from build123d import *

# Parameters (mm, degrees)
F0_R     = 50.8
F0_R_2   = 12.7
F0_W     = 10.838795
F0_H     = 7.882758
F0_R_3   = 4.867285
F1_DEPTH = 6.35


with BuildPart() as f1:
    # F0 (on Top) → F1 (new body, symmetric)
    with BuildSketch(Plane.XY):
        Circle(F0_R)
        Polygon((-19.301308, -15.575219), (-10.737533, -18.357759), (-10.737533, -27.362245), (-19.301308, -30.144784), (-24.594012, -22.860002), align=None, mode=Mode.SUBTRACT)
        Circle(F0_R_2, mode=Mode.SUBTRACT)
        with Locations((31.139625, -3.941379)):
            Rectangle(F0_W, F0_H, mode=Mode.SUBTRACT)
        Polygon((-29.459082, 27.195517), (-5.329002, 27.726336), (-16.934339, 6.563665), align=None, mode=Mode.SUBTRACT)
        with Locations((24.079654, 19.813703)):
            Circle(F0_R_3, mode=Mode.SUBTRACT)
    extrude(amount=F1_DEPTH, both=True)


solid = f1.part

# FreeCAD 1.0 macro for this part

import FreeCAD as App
import Part
import Sketcher
Q = App.Units.Quantity

doc = App.newDocument("Part")
params = doc.addObject("Spreadsheet::Sheet", "Params")
for row, (alias, value) in enumerate([
    ("sketch1_diameter", "4 in"),
    ("sketch1_diameter2", "1 in"),
    ("pad1_length", "0.5 in"),
], start=1):
    params.set(f"A{row}", alias)
    params.set(f"B{row}", "=" + value)
    params.setAlias(f"B{row}", alias)

body = doc.addObject("PartDesign::Body", "Body")

sketch1 = doc.addObject("Sketcher::SketchObject", "Sketch")
body.addObject(sketch1)
sketch1.AttachmentSupport = (doc.XY_Plane, [""])
sketch1.MapMode = "FlatFace"
sketch1.addGeometry([
    Part.Circle(App.Vector(0, 0, 0), App.Vector(0, 0, 1), 50.8),
    Part.LineSegment(App.Vector(-24.6, -22.9, 0), App.Vector(-19.3, -15.6, 0)),
    Part.LineSegment(App.Vector(-19.3, -15.6, 0), App.Vector(-10.7, -18.4, 0)),
    Part.LineSegment(App.Vector(-10.7, -18.4, 0), App.Vector(-10.7, -27.4, 0)),
    Part.LineSegment(App.Vector(-10.7, -27.4, 0), App.Vector(-19.3, -30.1, 0)),
    Part.LineSegment(App.Vector(-19.3, -30.1, 0), App.Vector(-24.6, -22.9, 0)),
    Part.LineSegment(App.Vector(36.6, -7.9, 0), App.Vector(25.7, -7.9, 0)),
    Part.LineSegment(App.Vector(25.7, -7.9, 0), App.Vector(25.7, 0, 0)),
    Part.LineSegment(App.Vector(25.7, 0, 0), App.Vector(36.6, 0, 0)),
    Part.LineSegment(App.Vector(36.6, 0, 0), App.Vector(36.6, -7.9, 0)),
    Part.Circle(App.Vector(0, 0, 0), App.Vector(0, 0, 1), 12.7),
    Part.LineSegment(App.Vector(-16.9, 6.6, 0), App.Vector(-29.5, 27.2, 0)),
    Part.LineSegment(App.Vector(-29.5, 27.2, 0), App.Vector(-5.3, 27.7, 0)),
    Part.LineSegment(App.Vector(-5.3, 27.7, 0), App.Vector(-16.9, 6.6, 0)),
    Part.Circle(App.Vector(24.1, 19.8, 0), App.Vector(0, 0, 1), 4.9),
], False)
sketch1.addConstraint([
    Sketcher.Constraint("Coincident", 1, 2, 2, 1),
    Sketcher.Constraint("Coincident", 2, 2, 3, 1),
    Sketcher.Constraint("Coincident", 3, 2, 4, 1),
    Sketcher.Constraint("Coincident", 4, 2, 5, 1),
    Sketcher.Constraint("Coincident", 5, 2, 1, 1),
    Sketcher.Constraint("Coincident", 6, 2, 7, 1),
    Sketcher.Constraint("Coincident", 7, 2, 8, 1),
    Sketcher.Constraint("Coincident", 8, 2, 9, 1),
    Sketcher.Constraint("Coincident", 9, 2, 6, 1),
    Sketcher.Constraint("Coincident", 11, 2, 12, 1),
    Sketcher.Constraint("Coincident", 12, 2, 13, 1),
    Sketcher.Constraint("Coincident", 13, 2, 11, 1),
    Sketcher.Constraint("Vertical", 3),
    Sketcher.Constraint("Horizontal", 6),
    Sketcher.Constraint("Vertical", 7),
    Sketcher.Constraint("Horizontal", 8),
    Sketcher.Constraint("Vertical", 9),
    Sketcher.Constraint("Coincident", 0, 3, -1, 1),
    Sketcher.Constraint("Coincident", 10, 3, -1, 1),
    Sketcher.Constraint("PointOnObject", 7, 2, -1),
    Sketcher.Constraint("Vertical", 1, 2, 4, 2),
    Sketcher.Constraint("Equal", 1, 2),
    Sketcher.Constraint("Equal", 2, 4),
    Sketcher.Constraint("Equal", 4, 5),
    Sketcher.Constraint("Equal", 11, 12),
    Sketcher.Constraint("Equal", 12, 13),
    Sketcher.Constraint("Diameter", 0, Q("4 in")),
    Sketcher.Constraint("Diameter", 10, Q("1 in")),
    Sketcher.Constraint("Angle", 1, Q("54.000003 deg")),
    Sketcher.Constraint("Angle", 2, Q("-18.000005 deg")),
    Sketcher.Constraint("DistanceY", 5, 2, -1, 1, Q("0.9000001 in")),
    Sketcher.Constraint("Diameter", 14, Q("9.73457 mm")),
    Sketcher.Constraint("DistanceX", 11, 2, 13, 2, Q("0.4931001 in")),
    Sketcher.Constraint("DistanceY", 2, 2, 6, 2, Q("10.475001 mm")),
    Sketcher.Constraint("DistanceX", 6, 2, 6, 1, Q("10.838795 mm")),
    Sketcher.Constraint("DistanceY", 3, 2, 3, 1, Q("9.004486 mm")),
    Sketcher.Constraint("DistanceX", 5, 2, -1, 1, Q("24.594012 mm")),
    Sketcher.Constraint("DistanceX", 11, 2, -1, 1, Q("29.459082 mm")),
    Sketcher.Constraint("DistanceX", 1, 2, 14, 3, Q("43.380962 mm")),
    Sketcher.Constraint("DistanceY", 3, 2, 14, 3, Q("47.175948 mm")),
    Sketcher.Constraint("DistanceX", 2, 2, 6, 2, Q("36.45776 mm")),
    Sketcher.Constraint("DistanceY", 5, 2, 11, 2, Q("50.055519 mm")),
    Sketcher.Constraint("DistanceX", 11, 2, 12, 2, Q("24.13008 mm")),
])
sketch1.setExpression("Constraints[26]", "Params.sketch1_diameter")
sketch1.setExpression("Constraints[27]", "Params.sketch1_diameter2")
pad1 = doc.addObject("PartDesign::Pad", "Pad")
body.addObject(pad1)
pad1.Profile = sketch1
pad1.setExpression("Length", "Params.pad1_length")
pad1.Midplane = True

doc.recompute()
